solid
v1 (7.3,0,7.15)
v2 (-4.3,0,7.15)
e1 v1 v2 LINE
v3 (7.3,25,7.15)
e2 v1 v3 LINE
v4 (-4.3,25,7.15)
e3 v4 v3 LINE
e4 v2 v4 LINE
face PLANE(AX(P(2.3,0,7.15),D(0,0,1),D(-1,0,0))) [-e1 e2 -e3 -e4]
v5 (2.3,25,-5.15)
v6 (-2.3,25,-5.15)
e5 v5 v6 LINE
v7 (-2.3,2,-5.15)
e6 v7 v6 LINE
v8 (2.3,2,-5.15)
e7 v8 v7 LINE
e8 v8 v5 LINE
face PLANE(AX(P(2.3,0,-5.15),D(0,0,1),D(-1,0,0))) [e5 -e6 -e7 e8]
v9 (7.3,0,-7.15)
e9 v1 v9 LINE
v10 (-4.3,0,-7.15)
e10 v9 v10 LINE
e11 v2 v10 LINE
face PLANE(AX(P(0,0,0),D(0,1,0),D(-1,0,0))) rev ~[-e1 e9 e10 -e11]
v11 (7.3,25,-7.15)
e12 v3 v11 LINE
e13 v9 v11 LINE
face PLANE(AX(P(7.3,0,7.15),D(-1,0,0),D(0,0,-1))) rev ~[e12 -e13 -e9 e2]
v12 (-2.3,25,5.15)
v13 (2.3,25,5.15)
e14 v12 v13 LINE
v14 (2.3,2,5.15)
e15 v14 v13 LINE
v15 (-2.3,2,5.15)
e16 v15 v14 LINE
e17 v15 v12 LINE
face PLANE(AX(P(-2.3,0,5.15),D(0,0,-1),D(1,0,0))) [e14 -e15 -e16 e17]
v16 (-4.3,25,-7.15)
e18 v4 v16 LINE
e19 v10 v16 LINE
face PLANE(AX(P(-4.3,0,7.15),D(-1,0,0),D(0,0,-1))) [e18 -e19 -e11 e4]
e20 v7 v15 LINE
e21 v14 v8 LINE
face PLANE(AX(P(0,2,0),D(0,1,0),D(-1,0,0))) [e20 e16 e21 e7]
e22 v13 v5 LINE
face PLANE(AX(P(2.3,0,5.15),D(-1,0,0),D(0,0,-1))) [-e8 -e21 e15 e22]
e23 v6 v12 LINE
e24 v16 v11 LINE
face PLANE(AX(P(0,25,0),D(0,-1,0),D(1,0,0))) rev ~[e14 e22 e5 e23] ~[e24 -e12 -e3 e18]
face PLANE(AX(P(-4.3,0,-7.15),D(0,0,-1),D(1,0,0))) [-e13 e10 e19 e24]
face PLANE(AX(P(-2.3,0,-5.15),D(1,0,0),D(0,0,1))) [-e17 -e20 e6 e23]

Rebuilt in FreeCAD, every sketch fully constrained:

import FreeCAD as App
import Part
import Sketcher
from FreeCAD import Vector

doc = App.newDocument("Part")
body = doc.addObject("PartDesign::Body", "Body")

sketch1 = body.newObject("Sketcher::SketchObject", "Sketch")
sketch1.AttachmentSupport = (doc.getObject("XZ_Plane"), [""])
sketch1.MapMode = "FlatFace"
sketch1.addGeometry([
    Part.LineSegment(Vector(-2.3, -5.2, 0), Vector(-2.3, 5.2, 0)),
    Part.LineSegment(Vector(-2.3, 5.2, 0), Vector(2.3, 5.2, 0)),
    Part.LineSegment(Vector(2.3, 5.2, 0), Vector(2.3, -5.2, 0)),
    Part.LineSegment(Vector(2.3, -5.2, 0), Vector(-2.3, -5.2, 0)),
], False)
sketch1.addConstraint([
    Sketcher.Constraint("Coincident", 0, 2, 1, 1),
    Sketcher.Constraint("Coincident", 1, 2, 2, 1),
    Sketcher.Constraint("Coincident", 2, 2, 3, 1),
    Sketcher.Constraint("Coincident", 3, 2, 0, 1),
    Sketcher.Constraint("Vertical", 0),
    Sketcher.Constraint("Horizontal", 1),
    Sketcher.Constraint("Vertical", 2),
    Sketcher.Constraint("Horizontal", 3),
    Sketcher.Constraint("Symmetric", 0, 2, 2, 2, -1, 1),
    Sketcher.Constraint("DistanceX", 1, 1, 1, 2, 4.6),
    Sketcher.Constraint("DistanceY", 0, 1, 0, 2, 10.3),
])
pad1 = body.newObject("PartDesign::Pad", "Pad")
pad1.Profile = sketch1
pad1.Length = 2
pad1.Reversed = True

sketch2 = body.newObject("Sketcher::SketchObject", "Sketch001")
sketch2.AttachmentSupport = (doc.getObject("XZ_Plane"), [""])
sketch2.MapMode = "FlatFace"
sketch2.addGeometry([
    Part.LineSegment(Vector(-4.3, -7.2, 0), Vector(7.3, -7.2, 0)),
    Part.LineSegment(Vector(7.3, -7.2, 0), Vector(7.3, 7.2, 0)),
    Part.LineSegment(Vector(7.3, 7.2, 0), Vector(-4.3, 7.2, 0)),
    Part.LineSegment(Vector(-4.3, 7.2, 0), Vector(-4.3, -7.2, 0)),
    Part.LineSegment(Vector(-2.3, 5.2, 0), Vector(2.3, 5.2, 0)),
    Part.LineSegment(Vector(2.3, 5.2, 0), Vector(2.3, -5.2, 0)),
    Part.LineSegment(Vector(2.3, -5.2, 0), Vector(-2.3, -5.2, 0)),
    Part.LineSegment(Vector(-2.3, -5.2, 0), Vector(-2.3, 5.2, 0)),
], False)
sketch2.addConstraint([
    Sketcher.Constraint("Coincident", 0, 2, 1, 1),
    Sketcher.Constraint("Coincident", 1, 2, 2, 1),
    Sketcher.Constraint("Coincident", 2, 2, 3, 1),
    Sketcher.Constraint("Coincident", 3, 2, 0, 1),
    Sketcher.Constraint("Coincident", 4, 2, 5, 1),
    Sketcher.Constraint("Coincident", 5, 2, 6, 1),
    Sketcher.Constraint("Coincident", 6, 2, 7, 1),
    Sketcher.Constraint("Coincident", 7, 2, 4, 1),
    Sketcher.Constraint("Horizontal", 0),
    Sketcher.Constraint("Vertical", 1),
    Sketcher.Constraint("Horizontal", 2),
    Sketcher.Constraint("Vertical", 3),
    Sketcher.Constraint("Horizontal", 4),
    Sketcher.Constraint("Vertical", 5),
    Sketcher.Constraint("Horizontal", 6),
    Sketcher.Constraint("Vertical", 7),
    Sketcher.Constraint("Symmetric", 4, 2, 6, 2, -1, 1),
    Sketcher.Constraint("DistanceX", 4, 2, 1, 2, 5.0),
    Sketcher.Constraint("DistanceY", 4, 2, 1, 2, 2.0),
    Sketcher.Constraint("DistanceY", 0, 2, 5, 2, 2.0),
    Sketcher.Constraint("DistanceX", 3, 2, 6, 2, 2.0),
    Sketcher.Constraint("DistanceX", 0, 1, 0, 2, 11.6),
    Sketcher.Constraint("DistanceY", 1, 1, 1, 2, 14.3),
])
pad2 = body.newObject("PartDesign::Pad", "Pad001")
pad2.Profile = sketch2
pad2.Length = 25
pad2.Reversed = True

doc.recompute()
